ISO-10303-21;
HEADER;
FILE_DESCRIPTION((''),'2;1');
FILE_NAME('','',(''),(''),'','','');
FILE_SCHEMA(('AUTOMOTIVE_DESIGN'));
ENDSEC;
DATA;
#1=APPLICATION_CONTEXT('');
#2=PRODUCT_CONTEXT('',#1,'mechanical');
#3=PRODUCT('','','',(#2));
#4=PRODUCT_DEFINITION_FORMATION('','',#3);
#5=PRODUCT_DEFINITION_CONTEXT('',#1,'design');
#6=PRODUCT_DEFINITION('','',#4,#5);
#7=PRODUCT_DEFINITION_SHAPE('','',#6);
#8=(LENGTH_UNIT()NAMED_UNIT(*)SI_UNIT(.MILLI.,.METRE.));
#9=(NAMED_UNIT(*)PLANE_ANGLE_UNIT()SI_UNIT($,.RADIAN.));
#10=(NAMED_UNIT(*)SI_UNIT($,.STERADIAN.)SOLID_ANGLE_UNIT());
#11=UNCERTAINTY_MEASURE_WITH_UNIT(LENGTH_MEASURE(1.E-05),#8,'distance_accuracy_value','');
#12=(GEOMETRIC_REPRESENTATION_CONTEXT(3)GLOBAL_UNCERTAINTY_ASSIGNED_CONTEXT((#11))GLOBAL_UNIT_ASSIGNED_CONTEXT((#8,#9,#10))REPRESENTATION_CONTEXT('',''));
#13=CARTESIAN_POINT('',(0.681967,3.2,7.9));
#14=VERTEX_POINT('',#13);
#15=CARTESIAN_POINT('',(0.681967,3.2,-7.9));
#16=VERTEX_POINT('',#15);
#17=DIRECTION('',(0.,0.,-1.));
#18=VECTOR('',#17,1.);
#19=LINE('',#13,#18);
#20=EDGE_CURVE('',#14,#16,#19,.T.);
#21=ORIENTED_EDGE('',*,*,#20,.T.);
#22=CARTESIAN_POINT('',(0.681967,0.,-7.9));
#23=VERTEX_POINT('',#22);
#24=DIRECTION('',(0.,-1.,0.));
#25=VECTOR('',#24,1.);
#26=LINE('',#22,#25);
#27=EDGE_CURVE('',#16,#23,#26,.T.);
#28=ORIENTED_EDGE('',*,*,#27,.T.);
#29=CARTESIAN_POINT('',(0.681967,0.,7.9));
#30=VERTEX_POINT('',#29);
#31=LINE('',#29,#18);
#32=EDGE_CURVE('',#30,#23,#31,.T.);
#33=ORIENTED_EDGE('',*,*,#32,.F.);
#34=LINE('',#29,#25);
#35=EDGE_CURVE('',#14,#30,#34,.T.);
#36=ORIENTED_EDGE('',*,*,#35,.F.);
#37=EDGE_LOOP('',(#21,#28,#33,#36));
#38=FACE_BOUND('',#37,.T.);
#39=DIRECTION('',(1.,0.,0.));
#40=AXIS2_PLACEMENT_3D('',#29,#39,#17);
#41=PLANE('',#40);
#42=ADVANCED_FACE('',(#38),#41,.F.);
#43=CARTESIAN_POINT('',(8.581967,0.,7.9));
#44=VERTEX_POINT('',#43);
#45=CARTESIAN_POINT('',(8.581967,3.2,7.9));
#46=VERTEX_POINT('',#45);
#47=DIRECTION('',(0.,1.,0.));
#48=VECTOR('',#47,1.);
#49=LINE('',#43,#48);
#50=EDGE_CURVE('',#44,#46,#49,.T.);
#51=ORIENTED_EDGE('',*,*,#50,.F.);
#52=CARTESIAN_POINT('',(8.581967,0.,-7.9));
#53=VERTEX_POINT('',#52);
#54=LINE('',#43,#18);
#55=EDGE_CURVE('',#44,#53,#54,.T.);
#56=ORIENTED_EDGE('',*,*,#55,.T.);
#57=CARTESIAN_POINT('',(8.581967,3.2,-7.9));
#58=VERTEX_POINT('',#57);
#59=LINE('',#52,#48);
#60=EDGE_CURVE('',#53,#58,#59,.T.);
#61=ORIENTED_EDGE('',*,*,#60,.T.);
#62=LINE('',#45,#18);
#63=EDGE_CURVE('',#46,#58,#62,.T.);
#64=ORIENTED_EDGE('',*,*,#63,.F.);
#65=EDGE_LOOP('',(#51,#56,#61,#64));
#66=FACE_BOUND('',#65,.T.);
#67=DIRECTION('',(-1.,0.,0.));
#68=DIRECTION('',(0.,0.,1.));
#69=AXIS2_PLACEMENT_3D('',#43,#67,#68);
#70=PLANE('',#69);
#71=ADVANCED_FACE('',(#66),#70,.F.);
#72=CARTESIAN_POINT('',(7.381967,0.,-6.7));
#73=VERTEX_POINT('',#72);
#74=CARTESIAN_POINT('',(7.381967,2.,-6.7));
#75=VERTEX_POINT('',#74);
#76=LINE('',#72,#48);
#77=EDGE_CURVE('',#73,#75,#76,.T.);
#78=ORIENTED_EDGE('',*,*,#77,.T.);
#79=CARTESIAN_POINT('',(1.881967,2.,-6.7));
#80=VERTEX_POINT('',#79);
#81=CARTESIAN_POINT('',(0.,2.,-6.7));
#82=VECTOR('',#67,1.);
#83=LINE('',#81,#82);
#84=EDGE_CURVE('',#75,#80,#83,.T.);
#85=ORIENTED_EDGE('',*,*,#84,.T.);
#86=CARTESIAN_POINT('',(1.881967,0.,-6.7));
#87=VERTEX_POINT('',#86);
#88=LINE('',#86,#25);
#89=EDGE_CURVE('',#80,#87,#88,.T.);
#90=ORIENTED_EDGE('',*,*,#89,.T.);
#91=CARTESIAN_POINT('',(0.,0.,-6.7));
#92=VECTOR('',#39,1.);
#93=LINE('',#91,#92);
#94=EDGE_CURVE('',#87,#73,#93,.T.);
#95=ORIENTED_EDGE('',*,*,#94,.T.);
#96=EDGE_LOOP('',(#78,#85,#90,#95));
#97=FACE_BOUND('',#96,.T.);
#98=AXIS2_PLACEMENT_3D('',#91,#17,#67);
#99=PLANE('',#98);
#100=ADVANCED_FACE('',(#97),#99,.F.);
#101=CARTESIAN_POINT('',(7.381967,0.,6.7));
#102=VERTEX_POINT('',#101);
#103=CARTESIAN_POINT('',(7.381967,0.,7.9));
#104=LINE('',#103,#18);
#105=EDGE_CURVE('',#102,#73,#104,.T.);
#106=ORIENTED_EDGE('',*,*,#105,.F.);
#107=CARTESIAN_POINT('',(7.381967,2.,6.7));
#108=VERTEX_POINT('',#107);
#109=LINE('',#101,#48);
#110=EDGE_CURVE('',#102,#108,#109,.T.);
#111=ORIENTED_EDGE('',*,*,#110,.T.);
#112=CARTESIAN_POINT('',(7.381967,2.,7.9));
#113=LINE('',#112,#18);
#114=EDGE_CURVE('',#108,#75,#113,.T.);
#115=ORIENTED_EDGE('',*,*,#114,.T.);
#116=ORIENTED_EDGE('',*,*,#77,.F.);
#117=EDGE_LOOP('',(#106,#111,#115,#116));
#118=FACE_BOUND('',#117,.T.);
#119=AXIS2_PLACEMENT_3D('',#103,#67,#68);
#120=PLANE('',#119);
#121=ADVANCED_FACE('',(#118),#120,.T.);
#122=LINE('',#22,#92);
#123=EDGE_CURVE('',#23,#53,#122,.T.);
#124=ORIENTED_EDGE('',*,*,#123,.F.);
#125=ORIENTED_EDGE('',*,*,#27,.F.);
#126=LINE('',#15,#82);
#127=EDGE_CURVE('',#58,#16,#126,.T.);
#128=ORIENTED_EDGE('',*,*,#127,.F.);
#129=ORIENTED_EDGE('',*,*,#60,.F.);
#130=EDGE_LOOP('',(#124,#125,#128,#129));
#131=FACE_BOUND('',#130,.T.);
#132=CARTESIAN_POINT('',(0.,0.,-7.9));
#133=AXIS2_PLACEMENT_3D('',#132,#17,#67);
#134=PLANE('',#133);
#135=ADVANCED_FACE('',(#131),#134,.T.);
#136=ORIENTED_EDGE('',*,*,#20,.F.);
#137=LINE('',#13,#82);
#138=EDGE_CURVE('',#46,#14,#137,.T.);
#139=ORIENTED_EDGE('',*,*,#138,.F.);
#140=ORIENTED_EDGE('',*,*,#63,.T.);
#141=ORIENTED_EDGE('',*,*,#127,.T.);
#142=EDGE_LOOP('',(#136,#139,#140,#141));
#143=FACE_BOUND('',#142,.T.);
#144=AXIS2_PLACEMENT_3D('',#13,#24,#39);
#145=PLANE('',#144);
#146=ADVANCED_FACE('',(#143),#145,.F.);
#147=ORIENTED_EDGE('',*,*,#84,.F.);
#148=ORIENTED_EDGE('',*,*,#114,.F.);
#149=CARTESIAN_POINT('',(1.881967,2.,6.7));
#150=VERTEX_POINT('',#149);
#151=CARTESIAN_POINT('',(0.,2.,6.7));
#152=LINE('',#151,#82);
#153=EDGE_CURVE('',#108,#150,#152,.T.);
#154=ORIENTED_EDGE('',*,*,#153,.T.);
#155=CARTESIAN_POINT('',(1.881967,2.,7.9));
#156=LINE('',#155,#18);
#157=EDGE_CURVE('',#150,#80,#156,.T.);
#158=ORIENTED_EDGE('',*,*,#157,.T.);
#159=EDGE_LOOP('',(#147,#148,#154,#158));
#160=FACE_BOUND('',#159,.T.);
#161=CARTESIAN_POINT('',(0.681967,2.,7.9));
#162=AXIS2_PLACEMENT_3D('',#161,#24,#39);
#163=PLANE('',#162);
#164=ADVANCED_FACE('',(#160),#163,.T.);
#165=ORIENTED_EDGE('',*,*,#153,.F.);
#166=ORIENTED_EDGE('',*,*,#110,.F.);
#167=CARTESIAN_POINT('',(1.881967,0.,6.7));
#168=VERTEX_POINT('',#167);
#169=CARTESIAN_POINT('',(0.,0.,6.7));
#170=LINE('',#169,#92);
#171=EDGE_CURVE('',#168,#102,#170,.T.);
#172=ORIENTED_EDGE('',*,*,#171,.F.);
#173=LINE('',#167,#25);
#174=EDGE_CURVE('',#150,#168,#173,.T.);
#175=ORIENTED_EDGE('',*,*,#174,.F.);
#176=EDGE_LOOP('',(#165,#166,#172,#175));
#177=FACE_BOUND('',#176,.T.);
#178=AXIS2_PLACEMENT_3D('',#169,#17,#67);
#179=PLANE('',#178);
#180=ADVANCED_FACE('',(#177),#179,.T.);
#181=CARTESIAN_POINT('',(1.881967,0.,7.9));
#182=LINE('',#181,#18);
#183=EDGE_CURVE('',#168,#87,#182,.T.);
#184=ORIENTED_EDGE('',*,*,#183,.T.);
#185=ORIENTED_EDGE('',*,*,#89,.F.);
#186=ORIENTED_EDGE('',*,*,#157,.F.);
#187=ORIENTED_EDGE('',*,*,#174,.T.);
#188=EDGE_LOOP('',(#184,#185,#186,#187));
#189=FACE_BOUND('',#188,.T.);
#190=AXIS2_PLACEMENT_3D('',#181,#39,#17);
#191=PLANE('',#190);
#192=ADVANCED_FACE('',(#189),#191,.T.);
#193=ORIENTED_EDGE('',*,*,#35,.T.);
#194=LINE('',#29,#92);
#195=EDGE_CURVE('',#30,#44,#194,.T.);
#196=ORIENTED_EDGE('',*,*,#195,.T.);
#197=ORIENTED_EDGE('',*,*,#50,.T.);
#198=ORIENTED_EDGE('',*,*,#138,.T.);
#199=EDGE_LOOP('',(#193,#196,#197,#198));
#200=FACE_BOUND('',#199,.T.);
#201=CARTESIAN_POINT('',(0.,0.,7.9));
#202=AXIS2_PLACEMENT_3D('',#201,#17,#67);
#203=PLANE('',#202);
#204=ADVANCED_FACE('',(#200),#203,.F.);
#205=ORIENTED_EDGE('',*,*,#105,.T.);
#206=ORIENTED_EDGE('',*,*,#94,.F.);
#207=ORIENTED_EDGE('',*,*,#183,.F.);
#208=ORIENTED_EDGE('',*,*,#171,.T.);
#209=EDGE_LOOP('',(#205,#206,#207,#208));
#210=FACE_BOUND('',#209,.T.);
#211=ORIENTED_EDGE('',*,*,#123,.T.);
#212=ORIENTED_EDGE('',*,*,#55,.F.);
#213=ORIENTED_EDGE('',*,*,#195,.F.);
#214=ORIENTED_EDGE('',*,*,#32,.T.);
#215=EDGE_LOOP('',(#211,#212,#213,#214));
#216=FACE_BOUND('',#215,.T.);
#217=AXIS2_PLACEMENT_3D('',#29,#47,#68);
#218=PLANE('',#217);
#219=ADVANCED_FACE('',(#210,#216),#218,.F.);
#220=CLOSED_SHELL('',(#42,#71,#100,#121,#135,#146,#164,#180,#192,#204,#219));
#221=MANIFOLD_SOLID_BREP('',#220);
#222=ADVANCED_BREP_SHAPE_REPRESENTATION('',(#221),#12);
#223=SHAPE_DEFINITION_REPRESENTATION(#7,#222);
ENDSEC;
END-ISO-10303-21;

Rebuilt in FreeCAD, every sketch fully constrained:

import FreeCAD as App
import Part
import Sketcher
Q = App.Units.Quantity


def faces_at(feature, points):
    """Names of the faces that lie closest to the given points."""
    faces = feature.Shape.Faces
    near = lambda p: min(range(len(faces)), key=lambda i: faces[i].distToShape(Part.Vertex(*p))[0])
    return sorted({f"Face{near(p) + 1}" for p in points})


def add_polygon(sketch, points):
    """Adds a closed chain of lines whose ends are joined by coincident constraints."""
    first, n = sketch.GeometryCount, len(points)
    for a, b in zip(points, points[1:] + points[:1]):
        sketch.addGeometry(Part.LineSegment(App.Vector(*a, 0), App.Vector(*b, 0)), False)
    for i in range(n):
        sketch.addConstraint(Sketcher.Constraint("Coincident", first + i, 2, first + (i + 1) % n, 1))

doc = App.newDocument("Part")
body = doc.addObject("PartDesign::Body", "Body")

sketch1 = doc.addObject("Sketcher::SketchObject", "Sketch")
body.addObject(sketch1)
sketch1.AttachmentSupport = (doc.XY_Plane, [""])
sketch1.MapMode = "FlatFace"
add_polygon(sketch1, [(0.7, 3.2), (0.7, 0), (8.6, 0), (8.6, 3.2)])
sketch1.addConstraint([
    Sketcher.Constraint("Vertical", 0),
    Sketcher.Constraint("Horizontal", 1),
    Sketcher.Constraint("Vertical", 2),
    Sketcher.Constraint("Horizontal", 3),
    Sketcher.Constraint("PointOnObject", 0, 2, -1),
    Sketcher.Constraint("DistanceX", 1, 1, 1, 2, Q("7.9 mm")),
    Sketcher.Constraint("DistanceY", 0, 2, 0, 1, Q("3.2 mm")),
    Sketcher.Constraint("DistanceX", -1, 1, 0, 2, Q("0.681967 mm")),
])
pad1 = doc.addObject("PartDesign::Pad", "Pad")
body.addObject(pad1)
pad1.Profile = sketch1
pad1.Length = 15.8
pad1.Midplane = True
doc.recompute()

thickness = doc.addObject("PartDesign::Thickness", "Thickness")
body.addObject(thickness)
thickness.Base = (pad1, faces_at(pad1, [(4.632, 0, 0)]))
thickness.Value = 1.2
thickness.Reversed = True
thickness.Join = "Intersection"

doc.recompute()
